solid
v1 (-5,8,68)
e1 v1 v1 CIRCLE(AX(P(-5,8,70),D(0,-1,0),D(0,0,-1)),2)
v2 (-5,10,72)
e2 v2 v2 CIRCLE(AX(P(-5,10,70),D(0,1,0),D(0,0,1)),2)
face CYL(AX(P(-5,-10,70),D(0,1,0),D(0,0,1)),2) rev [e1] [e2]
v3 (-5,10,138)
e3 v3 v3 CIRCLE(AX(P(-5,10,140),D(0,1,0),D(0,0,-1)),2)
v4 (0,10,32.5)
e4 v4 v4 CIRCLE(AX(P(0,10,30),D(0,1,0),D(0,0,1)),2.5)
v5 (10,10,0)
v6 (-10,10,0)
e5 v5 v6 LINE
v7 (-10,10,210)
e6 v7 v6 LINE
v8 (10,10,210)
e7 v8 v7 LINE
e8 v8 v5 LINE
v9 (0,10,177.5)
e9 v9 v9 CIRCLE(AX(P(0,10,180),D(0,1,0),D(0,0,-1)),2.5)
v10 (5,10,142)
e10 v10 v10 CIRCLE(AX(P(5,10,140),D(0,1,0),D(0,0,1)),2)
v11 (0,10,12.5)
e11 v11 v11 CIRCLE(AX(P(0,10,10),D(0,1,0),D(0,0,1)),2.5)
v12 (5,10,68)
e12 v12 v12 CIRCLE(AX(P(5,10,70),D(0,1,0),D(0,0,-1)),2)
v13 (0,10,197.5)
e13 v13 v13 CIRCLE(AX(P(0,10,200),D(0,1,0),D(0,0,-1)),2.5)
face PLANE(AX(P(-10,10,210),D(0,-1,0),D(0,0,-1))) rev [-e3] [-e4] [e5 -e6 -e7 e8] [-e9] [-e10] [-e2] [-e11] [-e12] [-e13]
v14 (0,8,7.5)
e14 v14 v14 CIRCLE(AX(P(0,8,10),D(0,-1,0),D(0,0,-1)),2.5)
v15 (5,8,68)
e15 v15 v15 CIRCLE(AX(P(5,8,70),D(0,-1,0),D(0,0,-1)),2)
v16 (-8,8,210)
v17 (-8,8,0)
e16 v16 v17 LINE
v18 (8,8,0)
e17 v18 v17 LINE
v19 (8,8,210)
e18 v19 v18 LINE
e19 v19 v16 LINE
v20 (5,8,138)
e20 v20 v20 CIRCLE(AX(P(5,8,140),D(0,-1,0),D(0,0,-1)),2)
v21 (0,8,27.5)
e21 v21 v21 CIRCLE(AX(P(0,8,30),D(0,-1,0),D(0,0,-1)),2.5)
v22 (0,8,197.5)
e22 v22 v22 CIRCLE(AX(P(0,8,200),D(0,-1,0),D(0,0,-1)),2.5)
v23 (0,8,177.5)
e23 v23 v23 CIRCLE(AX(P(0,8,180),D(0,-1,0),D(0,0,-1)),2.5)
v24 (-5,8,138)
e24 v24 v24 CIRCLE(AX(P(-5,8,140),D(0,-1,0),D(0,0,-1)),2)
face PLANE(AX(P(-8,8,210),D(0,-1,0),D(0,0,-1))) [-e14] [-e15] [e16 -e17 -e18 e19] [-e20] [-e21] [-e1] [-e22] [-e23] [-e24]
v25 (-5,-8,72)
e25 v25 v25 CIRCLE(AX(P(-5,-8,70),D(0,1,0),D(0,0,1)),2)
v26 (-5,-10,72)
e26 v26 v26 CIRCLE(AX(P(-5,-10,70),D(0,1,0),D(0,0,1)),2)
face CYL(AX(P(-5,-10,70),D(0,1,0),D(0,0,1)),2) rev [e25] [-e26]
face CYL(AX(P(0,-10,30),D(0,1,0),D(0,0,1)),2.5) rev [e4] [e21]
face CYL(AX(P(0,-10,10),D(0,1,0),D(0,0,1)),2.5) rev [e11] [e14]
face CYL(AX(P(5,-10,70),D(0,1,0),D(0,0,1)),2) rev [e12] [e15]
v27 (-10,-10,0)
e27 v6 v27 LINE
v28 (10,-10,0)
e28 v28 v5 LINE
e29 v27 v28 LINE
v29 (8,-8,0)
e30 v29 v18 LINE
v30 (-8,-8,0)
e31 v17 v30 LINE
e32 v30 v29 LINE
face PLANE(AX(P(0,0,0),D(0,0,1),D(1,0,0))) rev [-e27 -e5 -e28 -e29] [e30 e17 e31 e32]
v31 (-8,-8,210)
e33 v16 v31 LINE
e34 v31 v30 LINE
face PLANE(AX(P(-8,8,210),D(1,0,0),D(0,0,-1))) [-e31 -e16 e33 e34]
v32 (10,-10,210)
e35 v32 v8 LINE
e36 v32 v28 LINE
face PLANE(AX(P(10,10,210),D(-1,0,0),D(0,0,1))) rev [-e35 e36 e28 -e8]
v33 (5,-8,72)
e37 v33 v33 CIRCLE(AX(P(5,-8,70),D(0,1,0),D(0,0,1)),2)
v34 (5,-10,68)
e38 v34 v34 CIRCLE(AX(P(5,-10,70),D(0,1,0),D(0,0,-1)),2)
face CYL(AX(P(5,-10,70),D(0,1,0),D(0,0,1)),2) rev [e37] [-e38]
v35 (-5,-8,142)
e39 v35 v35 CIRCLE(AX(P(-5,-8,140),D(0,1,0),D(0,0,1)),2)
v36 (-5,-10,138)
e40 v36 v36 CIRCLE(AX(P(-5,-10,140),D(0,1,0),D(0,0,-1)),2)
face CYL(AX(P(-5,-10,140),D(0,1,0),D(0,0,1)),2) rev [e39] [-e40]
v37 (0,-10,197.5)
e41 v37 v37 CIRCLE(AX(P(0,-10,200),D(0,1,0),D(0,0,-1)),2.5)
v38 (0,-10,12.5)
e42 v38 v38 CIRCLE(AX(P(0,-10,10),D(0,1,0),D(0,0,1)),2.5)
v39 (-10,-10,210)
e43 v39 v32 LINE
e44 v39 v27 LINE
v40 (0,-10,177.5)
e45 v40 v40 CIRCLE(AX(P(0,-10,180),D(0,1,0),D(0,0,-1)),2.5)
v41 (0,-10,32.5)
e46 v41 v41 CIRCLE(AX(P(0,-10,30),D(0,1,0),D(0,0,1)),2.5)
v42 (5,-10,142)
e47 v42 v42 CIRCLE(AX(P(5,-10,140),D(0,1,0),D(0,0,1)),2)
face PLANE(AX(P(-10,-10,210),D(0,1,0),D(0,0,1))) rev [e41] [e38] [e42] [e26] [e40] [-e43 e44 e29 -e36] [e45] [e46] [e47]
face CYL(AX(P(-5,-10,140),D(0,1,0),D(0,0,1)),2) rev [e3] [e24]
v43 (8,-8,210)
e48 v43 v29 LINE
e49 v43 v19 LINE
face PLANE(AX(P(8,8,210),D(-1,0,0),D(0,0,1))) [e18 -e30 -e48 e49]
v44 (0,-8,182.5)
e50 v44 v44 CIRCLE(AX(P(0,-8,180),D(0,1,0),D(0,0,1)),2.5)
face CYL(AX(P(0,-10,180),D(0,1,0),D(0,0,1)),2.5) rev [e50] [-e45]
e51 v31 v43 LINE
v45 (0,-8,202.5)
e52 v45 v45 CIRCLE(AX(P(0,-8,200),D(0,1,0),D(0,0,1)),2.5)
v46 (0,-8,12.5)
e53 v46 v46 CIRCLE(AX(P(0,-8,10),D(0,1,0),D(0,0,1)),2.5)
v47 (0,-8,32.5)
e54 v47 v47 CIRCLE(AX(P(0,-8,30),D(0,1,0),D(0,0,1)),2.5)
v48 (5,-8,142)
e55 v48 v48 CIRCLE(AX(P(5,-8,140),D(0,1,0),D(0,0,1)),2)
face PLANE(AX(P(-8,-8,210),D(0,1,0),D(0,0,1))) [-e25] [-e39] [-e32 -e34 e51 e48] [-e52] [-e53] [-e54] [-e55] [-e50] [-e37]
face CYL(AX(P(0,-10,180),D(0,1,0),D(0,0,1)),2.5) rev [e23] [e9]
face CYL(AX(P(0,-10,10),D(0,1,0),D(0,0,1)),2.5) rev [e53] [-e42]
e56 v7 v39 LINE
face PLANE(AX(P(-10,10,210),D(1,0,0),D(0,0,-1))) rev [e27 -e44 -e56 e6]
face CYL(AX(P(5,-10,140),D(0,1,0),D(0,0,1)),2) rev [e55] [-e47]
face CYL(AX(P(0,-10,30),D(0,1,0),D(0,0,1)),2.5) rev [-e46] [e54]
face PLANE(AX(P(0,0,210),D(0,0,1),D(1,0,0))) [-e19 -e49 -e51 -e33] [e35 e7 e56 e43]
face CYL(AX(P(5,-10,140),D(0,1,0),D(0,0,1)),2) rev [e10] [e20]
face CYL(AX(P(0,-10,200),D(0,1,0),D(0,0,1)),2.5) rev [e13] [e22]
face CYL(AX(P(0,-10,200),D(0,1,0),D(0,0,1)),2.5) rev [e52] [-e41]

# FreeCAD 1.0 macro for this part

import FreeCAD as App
import Part
import Sketcher

V = App.Vector

doc = App.newDocument("Part")
body = doc.addObject("PartDesign::Body", "Body")

# Sketch on XY plane
sketch1 = body.newObject("Sketcher::SketchObject", "Sketch")
sketch1.AttachmentSupport = (doc.getObject("XY_Plane"), [""])
sketch1.MapMode = "FlatFace"
sketch1.addGeometry([
    Part.LineSegment(V(-10, 10, 0), V(-10, -10, 0)),  # 0
    Part.LineSegment(V(-10, -10, 0), V(10, -10, 0)),  # 1
    Part.LineSegment(V(10, -10, 0), V(10, 10, 0)),  # 2
    Part.LineSegment(V(10, 10, 0), V(-10, 10, 0)),  # 3
    Part.LineSegment(V(8, -8, 0), V(-8, -8, 0)),  # 4
    Part.LineSegment(V(-8, -8, 0), V(-8, 8, 0)),  # 5
    Part.LineSegment(V(-8, 8, 0), V(8, 8, 0)),  # 6
    Part.LineSegment(V(8, 8, 0), V(8, -8, 0)),  # 7
], False)
sketch1.addConstraint([
    Sketcher.Constraint("Coincident", 0, 2, 1, 1),
    Sketcher.Constraint("Coincident", 1, 2, 2, 1),
    Sketcher.Constraint("Coincident", 2, 2, 3, 1),
    Sketcher.Constraint("Coincident", 3, 2, 0, 1),
    Sketcher.Constraint("Coincident", 4, 2, 5, 1),
    Sketcher.Constraint("Coincident", 5, 2, 6, 1),
    Sketcher.Constraint("Coincident", 6, 2, 7, 1),
    Sketcher.Constraint("Coincident", 7, 2, 4, 1),
    Sketcher.Constraint("Vertical", 0),
    Sketcher.Constraint("Horizontal", 1),
    Sketcher.Constraint("Vertical", 2),
    Sketcher.Constraint("Horizontal", 3),
    Sketcher.Constraint("Horizontal", 4),
    Sketcher.Constraint("Vertical", 5),
    Sketcher.Constraint("Horizontal", 6),
    Sketcher.Constraint("Vertical", 7),
    Sketcher.Constraint("Symmetric", 0, 2, 2, 2, -1, 1),
    Sketcher.Constraint("Symmetric", 4, 2, 6, 2, -1, 1),
    Sketcher.Constraint("Equal", 3, 0),
    Sketcher.Constraint("Equal", 6, 5),
    Sketcher.Constraint("DistanceX", 1, 1, 1, 2, 20.0),
    Sketcher.Constraint("DistanceX", 4, 2, 4, 1, 16.0),
])
pad1 = body.newObject("PartDesign::Pad", "Pad")
pad1.Profile = sketch1
pad1.Length = 210

# Sketch on XZ plane
sketch2 = body.newObject("Sketcher::SketchObject", "Sketch001")
sketch2.AttachmentSupport = (doc.getObject("XZ_Plane"), [""])
sketch2.MapMode = "FlatFace"
sketch2.AttachmentOffset = App.Placement(V(0, 0, -10), App.Rotation())
sketch2.addGeometry([
    Part.Circle(V(0, 10, 0), V(0, 0, 1), 2.5),
    Part.Circle(V(0, 30, 0), V(0, 0, 1), 2.5),
    Part.Circle(V(0, 200, 0), V(0, 0, 1), 2.5),
    Part.Circle(V(0, 180, 0), V(0, 0, 1), 2.5),
], False)
sketch2.addConstraint([
    Sketcher.Constraint("Equal", 0, 1),
    Sketcher.Constraint("Equal", 1, 2),
    Sketcher.Constraint("Equal", 2, 3),
    Sketcher.Constraint("PointOnObject", 0, 3, -2),
    Sketcher.Constraint("PointOnObject", 1, 3, -2),
    Sketcher.Constraint("PointOnObject", 2, 3, -2),
    Sketcher.Constraint("PointOnObject", 3, 3, -2),
    Sketcher.Constraint("Diameter", 0, 5.0),
    Sketcher.Constraint("DistanceY", -1, 1, 0, 3, 10.0),
    Sketcher.Constraint("DistanceY", -1, 1, 1, 3, 30.0),
    Sketcher.Constraint("DistanceY", -1, 1, 2, 3, 200.0),
    Sketcher.Constraint("DistanceY", -1, 1, 3, 3, 180.0),
])
pocket1 = body.newObject("PartDesign::Pocket", "Pocket")
pocket1.Profile = sketch2
pocket1.Type = "ThroughAll"
pocket1.Reversed = True

# Sketch on XZ plane
sketch3 = body.newObject("Sketcher::SketchObject", "Sketch002")
sketch3.AttachmentSupport = (doc.getObject("XZ_Plane"), [""])
sketch3.MapMode = "FlatFace"
sketch3.AttachmentOffset = App.Placement(V(0, 0, -10), App.Rotation())
sketch3.addGeometry([
    Part.Circle(V(-5, 70, 0), V(0, 0, 1), 2),
    Part.Circle(V(5, 70, 0), V(0, 0, 1), 2),
    Part.Circle(V(5, 140, 0), V(0, 0, 1), 2),
    Part.Circle(V(-5, 140, 0), V(0, 0, 1), 2),
], False)
sketch3.addConstraint([
    Sketcher.Constraint("Equal", 0, 1),
    Sketcher.Constraint("Equal", 1, 2),
    Sketcher.Constraint("Equal", 2, 3),
    Sketcher.Constraint("Symmetric", 0, 3, 1, 3, -2),
    Sketcher.Constraint("Symmetric", 2, 3, 3, 3, -2),
    Sketcher.Constraint("Vertical", 1, 3, 2, 3),
    Sketcher.Constraint("Diameter", 0, 4.0),
    Sketcher.Constraint("DistanceX", 0, 3, -1, 1, 5.0),
    Sketcher.Constraint("DistanceY", -1, 1, 0, 3, 70.0),
    Sketcher.Constraint("DistanceY", -1, 1, 2, 3, 140.0),
])
pocket2 = body.newObject("PartDesign::Pocket", "Pocket001")
pocket2.Profile = sketch3
pocket2.Type = "ThroughAll"
pocket2.Reversed = True

doc.recompute()
